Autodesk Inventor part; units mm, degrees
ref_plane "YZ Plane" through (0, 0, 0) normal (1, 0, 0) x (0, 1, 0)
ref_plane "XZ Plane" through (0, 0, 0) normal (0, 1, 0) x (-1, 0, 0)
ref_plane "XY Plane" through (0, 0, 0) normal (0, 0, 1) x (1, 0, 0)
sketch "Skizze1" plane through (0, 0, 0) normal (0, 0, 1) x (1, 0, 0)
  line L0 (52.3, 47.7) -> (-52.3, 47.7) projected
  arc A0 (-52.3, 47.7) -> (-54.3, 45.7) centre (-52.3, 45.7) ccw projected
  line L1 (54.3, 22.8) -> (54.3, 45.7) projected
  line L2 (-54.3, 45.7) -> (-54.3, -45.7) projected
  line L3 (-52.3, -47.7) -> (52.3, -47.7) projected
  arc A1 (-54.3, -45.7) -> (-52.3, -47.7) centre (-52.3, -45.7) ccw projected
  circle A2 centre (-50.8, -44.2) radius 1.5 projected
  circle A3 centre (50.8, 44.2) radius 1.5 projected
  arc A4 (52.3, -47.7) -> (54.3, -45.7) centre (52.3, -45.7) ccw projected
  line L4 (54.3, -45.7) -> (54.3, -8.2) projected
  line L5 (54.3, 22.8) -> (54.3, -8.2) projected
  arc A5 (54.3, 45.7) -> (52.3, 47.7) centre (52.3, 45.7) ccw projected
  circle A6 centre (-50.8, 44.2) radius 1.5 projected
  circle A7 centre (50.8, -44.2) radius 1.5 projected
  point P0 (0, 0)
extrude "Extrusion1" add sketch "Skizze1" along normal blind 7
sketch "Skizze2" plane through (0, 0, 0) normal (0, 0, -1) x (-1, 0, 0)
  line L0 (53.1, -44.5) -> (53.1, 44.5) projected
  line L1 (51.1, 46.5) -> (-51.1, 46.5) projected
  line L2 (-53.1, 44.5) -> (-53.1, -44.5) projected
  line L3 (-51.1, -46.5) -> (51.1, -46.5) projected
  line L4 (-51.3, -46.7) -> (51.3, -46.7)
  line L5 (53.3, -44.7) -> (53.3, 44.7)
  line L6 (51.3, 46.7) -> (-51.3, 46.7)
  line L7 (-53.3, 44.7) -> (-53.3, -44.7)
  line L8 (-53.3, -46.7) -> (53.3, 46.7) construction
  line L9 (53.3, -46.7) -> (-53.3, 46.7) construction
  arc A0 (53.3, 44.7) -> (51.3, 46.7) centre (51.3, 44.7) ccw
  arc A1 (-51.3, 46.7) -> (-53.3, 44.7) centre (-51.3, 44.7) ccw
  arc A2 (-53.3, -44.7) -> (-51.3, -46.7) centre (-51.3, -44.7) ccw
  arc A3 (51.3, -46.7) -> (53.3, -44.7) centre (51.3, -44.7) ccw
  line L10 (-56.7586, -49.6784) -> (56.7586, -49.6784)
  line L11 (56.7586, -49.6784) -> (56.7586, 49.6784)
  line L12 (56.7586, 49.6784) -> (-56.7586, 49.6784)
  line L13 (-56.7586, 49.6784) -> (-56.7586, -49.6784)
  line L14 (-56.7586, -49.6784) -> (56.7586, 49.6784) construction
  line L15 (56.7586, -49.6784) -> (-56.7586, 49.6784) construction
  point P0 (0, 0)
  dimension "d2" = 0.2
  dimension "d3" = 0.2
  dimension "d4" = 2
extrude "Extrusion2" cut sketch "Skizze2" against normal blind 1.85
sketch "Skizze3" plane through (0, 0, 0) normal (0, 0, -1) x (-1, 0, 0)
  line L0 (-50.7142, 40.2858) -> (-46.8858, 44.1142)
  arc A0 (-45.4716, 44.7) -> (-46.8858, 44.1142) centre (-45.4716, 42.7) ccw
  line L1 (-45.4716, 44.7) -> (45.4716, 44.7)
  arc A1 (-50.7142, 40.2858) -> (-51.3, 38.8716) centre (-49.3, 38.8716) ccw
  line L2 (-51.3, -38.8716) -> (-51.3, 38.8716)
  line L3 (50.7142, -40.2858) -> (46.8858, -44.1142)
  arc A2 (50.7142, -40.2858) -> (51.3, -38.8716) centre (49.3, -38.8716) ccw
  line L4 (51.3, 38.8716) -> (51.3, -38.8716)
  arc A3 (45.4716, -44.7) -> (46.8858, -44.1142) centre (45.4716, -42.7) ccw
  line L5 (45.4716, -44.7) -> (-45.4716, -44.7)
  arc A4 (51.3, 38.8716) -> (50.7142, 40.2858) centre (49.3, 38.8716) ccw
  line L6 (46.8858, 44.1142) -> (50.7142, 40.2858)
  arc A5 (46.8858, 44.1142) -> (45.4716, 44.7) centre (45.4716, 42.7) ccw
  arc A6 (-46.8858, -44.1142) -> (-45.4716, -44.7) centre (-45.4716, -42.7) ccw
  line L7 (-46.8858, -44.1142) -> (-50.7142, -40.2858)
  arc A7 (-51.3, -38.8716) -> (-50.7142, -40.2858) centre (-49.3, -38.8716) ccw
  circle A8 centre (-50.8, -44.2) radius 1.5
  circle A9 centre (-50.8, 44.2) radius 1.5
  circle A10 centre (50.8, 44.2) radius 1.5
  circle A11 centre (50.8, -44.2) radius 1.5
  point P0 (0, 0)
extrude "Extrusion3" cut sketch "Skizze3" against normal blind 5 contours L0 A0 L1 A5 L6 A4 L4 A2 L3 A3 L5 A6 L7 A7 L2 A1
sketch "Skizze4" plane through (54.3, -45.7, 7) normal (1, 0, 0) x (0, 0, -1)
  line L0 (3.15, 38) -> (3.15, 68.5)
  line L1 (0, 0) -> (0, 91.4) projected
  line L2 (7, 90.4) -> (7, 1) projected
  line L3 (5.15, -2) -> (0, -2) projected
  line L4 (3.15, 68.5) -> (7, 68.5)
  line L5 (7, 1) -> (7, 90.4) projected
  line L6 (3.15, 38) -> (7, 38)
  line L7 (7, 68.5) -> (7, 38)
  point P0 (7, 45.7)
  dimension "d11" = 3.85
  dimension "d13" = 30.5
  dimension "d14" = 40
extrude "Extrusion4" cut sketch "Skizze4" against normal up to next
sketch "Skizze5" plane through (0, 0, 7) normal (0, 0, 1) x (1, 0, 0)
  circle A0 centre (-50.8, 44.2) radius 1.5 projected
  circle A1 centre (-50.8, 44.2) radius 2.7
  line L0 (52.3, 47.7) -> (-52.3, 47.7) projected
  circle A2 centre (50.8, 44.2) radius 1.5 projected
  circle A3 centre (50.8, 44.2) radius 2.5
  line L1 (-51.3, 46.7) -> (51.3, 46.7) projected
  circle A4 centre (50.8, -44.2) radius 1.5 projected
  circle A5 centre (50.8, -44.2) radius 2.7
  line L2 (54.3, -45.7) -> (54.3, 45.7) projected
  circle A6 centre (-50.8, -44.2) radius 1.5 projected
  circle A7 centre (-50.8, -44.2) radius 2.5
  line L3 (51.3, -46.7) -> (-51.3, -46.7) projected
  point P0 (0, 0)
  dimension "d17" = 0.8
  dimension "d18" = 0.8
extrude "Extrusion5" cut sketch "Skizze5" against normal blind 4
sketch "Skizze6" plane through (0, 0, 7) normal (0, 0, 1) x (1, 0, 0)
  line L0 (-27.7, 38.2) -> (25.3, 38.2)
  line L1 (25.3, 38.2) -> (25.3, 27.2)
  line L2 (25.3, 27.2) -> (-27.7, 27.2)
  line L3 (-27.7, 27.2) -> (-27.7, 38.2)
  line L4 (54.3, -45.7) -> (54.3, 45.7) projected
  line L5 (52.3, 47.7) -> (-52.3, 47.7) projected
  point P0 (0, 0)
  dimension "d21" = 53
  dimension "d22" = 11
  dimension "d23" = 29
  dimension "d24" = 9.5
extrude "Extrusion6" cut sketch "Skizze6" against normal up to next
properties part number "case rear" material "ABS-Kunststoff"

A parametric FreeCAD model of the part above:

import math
import FreeCAD as App
import Part
import Sketcher

V = App.Vector

doc = App.newDocument("Part")
params = doc.addObject("Spreadsheet::Sheet", "Params")
for row, (alias, value) in enumerate([
    ("sketch1_diameter", "3 mm"),
    ("sketch1_radius", "2 mm"),
    ("sketch1_width", "104.6 mm"),
    ("sketch1_height", "91.4 mm"),
    ("pad1_length", "7 mm"),
    ("sketch2_radius", "2 mm"),
    ("sketch2_width", "102.6 mm"),
    ("sketch2_height", "89.4 mm"),
    ("pocket1_length", "1.85 mm"),
    ("sketch3_radius", "2 mm"),
    ("pocket2_length", "5 mm"),
    ("sketch4_width", "30.5 mm"),
    ("sketch4_height", "3.85 mm"),
    ("sketch5_diameter", "3 mm"),
    ("sketch5_diameter2", "5 mm"),
    ("sketch5_diameter3", "5.4 mm"),
    ("pocket4_length", "4 mm"),
    ("sketch6_width", "53 mm"),
    ("sketch6_height", "11 mm"),
], start=1):
    params.set(f"A{row}", alias)
    params.set(f"B{row}", "=" + value)
    params.setAlias(f"B{row}", alias)

body = doc.addObject("PartDesign::Body", "Body")

sketch1 = body.newObject("Sketcher::SketchObject", "Sketch")
sketch1.AttachmentSupport = (doc.getObject("XY_Plane"), [""])
sketch1.MapMode = "FlatFace"
sketch1.addGeometry([
    Part.ArcOfCircle(Part.Circle(V(52.3, 45.7, 0), V(0, 0, 1), 2), math.radians(0), math.radians(90)),
    Part.LineSegment(V(52.3, 47.7, 0), V(-52.3, 47.7, 0)),
    Part.ArcOfCircle(Part.Circle(V(-52.3, 45.7, 0), V(0, 0, 1), 2), math.radians(90), math.radians(180)),
    Part.LineSegment(V(-54.3, 45.7, 0), V(-54.3, -45.7, 0)),
    Part.ArcOfCircle(Part.Circle(V(-52.3, -45.7, 0), V(0, 0, 1), 2), math.radians(180), math.radians(270)),
    Part.LineSegment(V(-52.3, -47.7, 0), V(52.3, -47.7, 0)),
    Part.ArcOfCircle(Part.Circle(V(52.3, -45.7, 0), V(0, 0, 1), 2), math.radians(-90), math.radians(0)),
    Part.LineSegment(V(54.3, -45.7, 0), V(54.3, 45.7, 0)),
    Part.Circle(V(-50.8, -44.2, 0), V(0, 0, 1), 1.5),
    Part.Circle(V(50.8, -44.2, 0), V(0, 0, 1), 1.5),
    Part.Circle(V(-50.8, 44.2, 0), V(0, 0, 1), 1.5),
    Part.Circle(V(50.8, 44.2, 0), V(0, 0, 1), 1.5),
], False)
sketch1.addConstraint([
    Sketcher.Constraint("Tangent", 0, 2, 1, 1),
    Sketcher.Constraint("Tangent", 1, 2, 2, 1),
    Sketcher.Constraint("Tangent", 2, 2, 3, 1),
    Sketcher.Constraint("Tangent", 3, 2, 4, 1),
    Sketcher.Constraint("Tangent", 4, 2, 5, 1),
    Sketcher.Constraint("Tangent", 5, 2, 6, 1),
    Sketcher.Constraint("Tangent", 6, 2, 7, 1),
    Sketcher.Constraint("Tangent", 7, 2, 0, 1),
    Sketcher.Constraint("Horizontal", 1),
    Sketcher.Constraint("Vertical", 3),
    Sketcher.Constraint("Horizontal", 5),
    Sketcher.Constraint("Vertical", 7),
    Sketcher.Constraint("Equal", 0, 2),
    Sketcher.Constraint("Equal", 2, 4),
    Sketcher.Constraint("Equal", 4, 6),
    Sketcher.Constraint("Equal", 8, 9),
    Sketcher.Constraint("Equal", 9, 10),
    Sketcher.Constraint("Equal", 10, 11),
    Sketcher.Constraint("Symmetric", 0, 3, 4, 3, -1, 1),
    Sketcher.Constraint("Symmetric", 9, 3, 10, 3, -1, 1),
    Sketcher.Constraint("Symmetric", 8, 3, 11, 3, -1, 1),
    Sketcher.Constraint("Symmetric", 8, 3, 9, 3, -2),
    Sketcher.Constraint("Diameter", 8, 3.0),
    Sketcher.Constraint("Radius", 0, 2.0),
    Sketcher.Constraint("DistanceX", 1, 2, 1, 1, 104.6),
    Sketcher.Constraint("DistanceY", 3, 2, 3, 1, 91.4),
    Sketcher.Constraint("DistanceX", 8, 3, -1, 1, 50.8),
    Sketcher.Constraint("DistanceY", 8, 3, -1, 1, 44.2),
])
sketch1.setExpression("Constraints[22]", "Params.sketch1_diameter")
sketch1.setExpression("Constraints[23]", "Params.sketch1_radius")
sketch1.setExpression("Constraints[24]", "Params.sketch1_width")
sketch1.setExpression("Constraints[25]", "Params.sketch1_height")
pad1 = body.newObject("PartDesign::Pad", "Pad")
pad1.Profile = sketch1
pad1.setExpression("Length", "Params.pad1_length")

sketch2 = body.newObject("Sketcher::SketchObject", "Sketch001")
sketch2.AttachmentSupport = (doc.getObject("XY_Plane"), [""])
sketch2.MapMode = "FlatFace"
sketch2.addGeometry([
    Part.LineSegment(V(56.8, 49.7, 0), V(56.8, -49.7, 0)),
    Part.LineSegment(V(56.8, -49.7, 0), V(-56.8, -49.7, 0)),
    Part.LineSegment(V(-56.8, -49.7, 0), V(-56.8, 49.7, 0)),
    Part.LineSegment(V(-56.8, 49.7, 0), V(56.8, 49.7, 0)),
    Part.LineSegment(V(-51.3, -46.7, 0), V(51.3, -46.7, 0)),
    Part.ArcOfCircle(Part.Circle(V(51.3, -44.7, 0), V(0, 0, 1), 2), math.radians(-90), math.radians(0)),
    Part.LineSegment(V(53.3, -44.7, 0), V(53.3, 44.7, 0)),
    Part.ArcOfCircle(Part.Circle(V(51.3, 44.7, 0), V(0, 0, 1), 2), math.radians(0), math.radians(90)),
    Part.LineSegment(V(51.3, 46.7, 0), V(-51.3, 46.7, 0)),
    Part.ArcOfCircle(Part.Circle(V(-51.3, 44.7, 0), V(0, 0, 1), 2), math.radians(90), math.radians(180)),
    Part.LineSegment(V(-53.3, 44.7, 0), V(-53.3, -44.7, 0)),
    Part.ArcOfCircle(Part.Circle(V(-51.3, -44.7, 0), V(0, 0, 1), 2), math.radians(180), math.radians(270)),
], False)
sketch2.addConstraint([
    Sketcher.Constraint("Coincident", 0, 2, 1, 1),
    Sketcher.Constraint("Coincident", 1, 2, 2, 1),
    Sketcher.Constraint("Coincident", 2, 2, 3, 1),
    Sketcher.Constraint("Coincident", 3, 2, 0, 1),
    Sketcher.Constraint("Tangent", 4, 2, 5, 1),
    Sketcher.Constraint("Tangent", 5, 2, 6, 1),
    Sketcher.Constraint("Tangent", 6, 2, 7, 1),
    Sketcher.Constraint("Tangent", 7, 2, 8, 1),
    Sketcher.Constraint("Tangent", 8, 2, 9, 1),
    Sketcher.Constraint("Tangent", 9, 2, 10, 1),
    Sketcher.Constraint("Tangent", 10, 2, 11, 1),
    Sketcher.Constraint("Tangent", 11, 2, 4, 1),
    Sketcher.Constraint("Vertical", 0),
    Sketcher.Constraint("Horizontal", 1),
    Sketcher.Constraint("Vertical", 2),
    Sketcher.Constraint("Horizontal", 3),
    Sketcher.Constraint("Horizontal", 4),
    Sketcher.Constraint("Vertical", 6),
    Sketcher.Constraint("Horizontal", 8),
    Sketcher.Constraint("Vertical", 10),
    Sketcher.Constraint("Equal", 5, 7),
    Sketcher.Constraint("Equal", 7, 9),
    Sketcher.Constraint("Equal", 9, 11),
    Sketcher.Constraint("Symmetric", 5, 3, 9, 3, -1, 1),
    Sketcher.Constraint("Symmetric", 0, 2, 2, 2, -1, 1),
    Sketcher.Constraint("Radius", 5, 2.0),
    Sketcher.Constraint("DistanceX", 4, 1, 4, 2, 102.6),
    Sketcher.Constraint("DistanceY", 6, 1, 6, 2, 89.4),
    Sketcher.Constraint("DistanceX", 1, 2, 1, 1, 113.5172),
    Sketcher.Constraint("DistanceY", 0, 2, 0, 1, 99.3568),
])
sketch2.setExpression("Constraints[25]", "Params.sketch2_radius")
sketch2.setExpression("Constraints[26]", "Params.sketch2_width")
sketch2.setExpression("Constraints[27]", "Params.sketch2_height")
pocket1 = body.newObject("PartDesign::Pocket", "Pocket")
pocket1.Profile = sketch2
pocket1.setExpression("Length", "Params.pocket1_length")
pocket1.Reversed = True

sketch3 = body.newObject("Sketcher::SketchObject", "Sketch002")
sketch3.AttachmentSupport = (doc.getObject("XY_Plane"), [""])
sketch3.MapMode = "FlatFace"
sketch3.addGeometry([
    Part.LineSegment(V(46.9, 44.1, 0), V(50.7, 40.3, 0)),
    Part.ArcOfCircle(Part.Circle(V(49.3, 38.9, 0), V(0, 0, 1), 2), math.radians(0), math.radians(45)),
    Part.LineSegment(V(51.3, 38.9, 0), V(51.3, -38.9, 0)),
    Part.ArcOfCircle(Part.Circle(V(49.3, -38.9, 0), V(0, 0, 1), 2), math.radians(-45), math.radians(0)),
    Part.LineSegment(V(50.7, -40.3, 0), V(46.9, -44.1, 0)),
    Part.ArcOfCircle(Part.Circle(V(45.5, -42.7, 0), V(0, 0, 1), 2), math.radians(-90), math.radians(-45)),
    Part.LineSegment(V(45.5, -44.7, 0), V(-45.5, -44.7, 0)),
    Part.ArcOfCircle(Part.Circle(V(-45.5, -42.7, 0), V(0, 0, 1), 2), math.radians(-135), math.radians(-90)),
    Part.LineSegment(V(-46.9, -44.1, 0), V(-50.7, -40.3, 0)),
    Part.ArcOfCircle(Part.Circle(V(-49.3, -38.9, 0), V(0, 0, 1), 2), math.radians(180), math.radians(225)),
    Part.LineSegment(V(-51.3, -38.9, 0), V(-51.3, 38.9, 0)),
    Part.ArcOfCircle(Part.Circle(V(-49.3, 38.9, 0), V(0, 0, 1), 2), math.radians(135), math.radians(180)),
    Part.LineSegment(V(-50.7, 40.3, 0), V(-46.9, 44.1, 0)),
    Part.ArcOfCircle(Part.Circle(V(-45.5, 42.7, 0), V(0, 0, 1), 2), math.radians(90), math.radians(135)),
    Part.LineSegment(V(-45.5, 44.7, 0), V(45.5, 44.7, 0)),
    Part.ArcOfCircle(Part.Circle(V(45.5, 42.7, 0), V(0, 0, 1), 2), math.radians(45), math.radians(90)),
], False)
sketch3.addConstraint([
    Sketcher.Constraint("Tangent", 0, 2, 1, 2),
    Sketcher.Constraint("Tangent", 1, 1, 2, 1),
    Sketcher.Constraint("Tangent", 2, 2, 3, 2),
    Sketcher.Constraint("Tangent", 3, 1, 4, 1),
    Sketcher.Constraint("Tangent", 4, 2, 5, 2),
    Sketcher.Constraint("Tangent", 5, 1, 6, 1),
    Sketcher.Constraint("Tangent", 6, 2, 7, 2),
    Sketcher.Constraint("Tangent", 7, 1, 8, 1),
    Sketcher.Constraint("Tangent", 8, 2, 9, 2),
    Sketcher.Constraint("Tangent", 9, 1, 10, 1),
    Sketcher.Constraint("Tangent", 10, 2, 11, 2),
    Sketcher.Constraint("Tangent", 11, 1, 12, 1),
    Sketcher.Constraint("Tangent", 12, 2, 13, 2),
    Sketcher.Constraint("Tangent", 13, 1, 14, 1),
    Sketcher.Constraint("Tangent", 14, 2, 15, 2),
    Sketcher.Constraint("Tangent", 15, 1, 0, 1),
    Sketcher.Constraint("Vertical", 2),
    Sketcher.Constraint("Horizontal", 6),
    Sketcher.Constraint("Vertical", 10),
    Sketcher.Constraint("Horizontal", 14),
    Sketcher.Constraint("Equal", 1, 3),
    Sketcher.Constraint("Equal", 3, 5),
    Sketcher.Constraint("Equal", 5, 7),
    Sketcher.Constraint("Equal", 7, 9),
    Sketcher.Constraint("Equal", 9, 11),
    Sketcher.Constraint("Equal", 11, 13),
    Sketcher.Constraint("Equal", 13, 15),
    Sketcher.Constraint("Symmetric", 1, 3, 9, 3, -1, 1),
    Sketcher.Constraint("Symmetric", 5, 3, 13, 3, -1, 1),
    Sketcher.Constraint("Symmetric", 4, 2, 7, 1, -2),
    Sketcher.Constraint("Symmetric", 0, 2, 11, 1, -2),
    Sketcher.Constraint("Perpendicular", 0, 4),
    Sketcher.Constraint("Radius", 1, 2.0),
    Sketcher.Constraint("DistanceX", -1, 1, 1, 3, 49.3),
    Sketcher.Constraint("DistanceY", 5, 3, -1, 1, 42.7),
    Sketcher.Constraint("DistanceX", 6, 2, 6, 1, 90.9432),
])
sketch3.setExpression("Constraints[32]", "Params.sketch3_radius")
pocket2 = body.newObject("PartDesign::Pocket", "Pocket001")
pocket2.Profile = sketch3
pocket2.setExpression("Length", "Params.pocket2_length")
pocket2.Reversed = True

sketch4 = body.newObject("Sketcher::SketchObject", "Sketch003")
sketch4.AttachmentSupport = (doc.getObject("YZ_Plane"), [""])
sketch4.MapMode = "FlatFace"
sketch4.AttachmentOffset = App.Placement(V(0, 0, 54.3), App.Rotation())
sketch4.addGeometry([
    Part.LineSegment(V(22.8, 3.9, 0), V(-7.7, 3.9, 0)),
    Part.LineSegment(V(-7.7, 3.9, 0), V(-7.7, 0, 0)),
    Part.LineSegment(V(-7.7, 0, 0), V(22.8, 0, 0)),
    Part.LineSegment(V(22.8, 0, 0), V(22.8, 3.9, 0)),
], False)
sketch4.addConstraint([
    Sketcher.Constraint("Coincident", 0, 2, 1, 1),
    Sketcher.Constraint("Coincident", 1, 2, 2, 1),
    Sketcher.Constraint("Coincident", 2, 2, 3, 1),
    Sketcher.Constraint("Coincident", 3, 2, 0, 1),
    Sketcher.Constraint("Horizontal", 0),
    Sketcher.Constraint("Vertical", 1),
    Sketcher.Constraint("Horizontal", 2),
    Sketcher.Constraint("Vertical", 3),
    Sketcher.Constraint("PointOnObject", 1, 2, -1),
    Sketcher.Constraint("DistanceX", 0, 2, 0, 1, 30.5),
    Sketcher.Constraint("DistanceY", 1, 2, 1, 1, 3.85),
    Sketcher.Constraint("DistanceX", 0, 2, -1, 1, 7.7),
])
sketch4.setExpression("Constraints[9]", "Params.sketch4_width")
sketch4.setExpression("Constraints[10]", "Params.sketch4_height")
pocket3 = body.newObject("PartDesign::Pocket", "Pocket002")
pocket3.Profile = sketch4
pocket3.Type = "UpToFirst"

sketch5 = body.newObject("Sketcher::SketchObject", "Sketch004")
sketch5.AttachmentSupport = (doc.getObject("XY_Plane"), [""])
sketch5.MapMode = "FlatFace"
sketch5.AttachmentOffset = App.Placement(V(0, 0, 7), App.Rotation())
sketch5.addGeometry([
    Part.Circle(V(-50.8, 44.2, 0), V(0, 0, 1), 2.7),
    Part.Circle(V(-50.8, 44.2, 0), V(0, 0, 1), 1.5),
    Part.Circle(V(50.8, 44.2, 0), V(0, 0, 1), 2.5),
    Part.Circle(V(50.8, 44.2, 0), V(0, 0, 1), 1.5),
    Part.Circle(V(50.8, -44.2, 0), V(0, 0, 1), 2.7),
    Part.Circle(V(50.8, -44.2, 0), V(0, 0, 1), 1.5),
    Part.Circle(V(-50.8, -44.2, 0), V(0, 0, 1), 2.5),
    Part.Circle(V(-50.8, -44.2, 0), V(0, 0, 1), 1.5),
], False)
sketch5.addConstraint([
    Sketcher.Constraint("Coincident", 1, 3, 0, 3),
    Sketcher.Constraint("Coincident", 3, 3, 2, 3),
    Sketcher.Constraint("Coincident", 5, 3, 4, 3),
    Sketcher.Constraint("Coincident", 7, 3, 6, 3),
    Sketcher.Constraint("Equal", 1, 3),
    Sketcher.Constraint("Equal", 0, 4),
    Sketcher.Constraint("Equal", 3, 5),
    Sketcher.Constraint("Equal", 2, 6),
    Sketcher.Constraint("Equal", 5, 7),
    Sketcher.Constraint("Symmetric", 0, 3, 4, 3, -1, 1),
    Sketcher.Constraint("Symmetric", 2, 3, 6, 3, -1, 1),
    Sketcher.Constraint("Symmetric", 0, 3, 2, 3, -2),
    Sketcher.Constraint("Diameter", 1, 3.0),
    Sketcher.Constraint("Diameter", 2, 5.0),
    Sketcher.Constraint("Diameter", 0, 5.4),
    Sketcher.Constraint("DistanceX", 0, 3, -1, 1, 50.8),
    Sketcher.Constraint("DistanceY", -1, 1, 0, 3, 44.2),
])
sketch5.setExpression("Constraints[12]", "Params.sketch5_diameter")
sketch5.setExpression("Constraints[13]", "Params.sketch5_diameter2")
sketch5.setExpression("Constraints[14]", "Params.sketch5_diameter3")
pocket4 = body.newObject("PartDesign::Pocket", "Pocket003")
pocket4.Profile = sketch5
pocket4.setExpression("Length", "Params.pocket4_length")

sketch6 = body.newObject("Sketcher::SketchObject", "Sketch005")
sketch6.AttachmentSupport = (doc.getObject("XY_Plane"), [""])
sketch6.MapMode = "FlatFace"
sketch6.AttachmentOffset = App.Placement(V(0, 0, 7), App.Rotation())
sketch6.addGeometry([
    Part.LineSegment(V(25, 38, 0), V(-28, 38, 0)),
    Part.LineSegment(V(-28, 38, 0), V(-28, 27, 0)),
    Part.LineSegment(V(-28, 27, 0), V(25, 27, 0)),
    Part.LineSegment(V(25, 27, 0), V(25, 38, 0)),
], False)
sketch6.addConstraint([
    Sketcher.Constraint("Coincident", 0, 2, 1, 1),
    Sketcher.Constraint("Coincident", 1, 2, 2, 1),
    Sketcher.Constraint("Coincident", 2, 2, 3, 1),
    Sketcher.Constraint("Coincident", 3, 2, 0, 1),
    Sketcher.Constraint("Horizontal", 0),
    Sketcher.Constraint("Vertical", 1),
    Sketcher.Constraint("Horizontal", 2),
    Sketcher.Constraint("Vertical", 3),
    Sketcher.Constraint("DistanceX", 0, 2, 0, 1, 53.0),
    Sketcher.Constraint("DistanceY", 1, 2, 1, 1, 11.0),
    Sketcher.Constraint("DistanceX", 0, 2, -1, 1, 27.7),
    Sketcher.Constraint("DistanceY", -1, 1, 0, 2, 38.2),
])
sketch6.setExpression("Constraints[8]", "Params.sketch6_width")
sketch6.setExpression("Constraints[9]", "Params.sketch6_height")
pocket5 = body.newObject("PartDesign::Pocket", "Pocket004")
pocket5.Profile = sketch6
pocket5.Type = "UpToFirst"

doc.recompute()
